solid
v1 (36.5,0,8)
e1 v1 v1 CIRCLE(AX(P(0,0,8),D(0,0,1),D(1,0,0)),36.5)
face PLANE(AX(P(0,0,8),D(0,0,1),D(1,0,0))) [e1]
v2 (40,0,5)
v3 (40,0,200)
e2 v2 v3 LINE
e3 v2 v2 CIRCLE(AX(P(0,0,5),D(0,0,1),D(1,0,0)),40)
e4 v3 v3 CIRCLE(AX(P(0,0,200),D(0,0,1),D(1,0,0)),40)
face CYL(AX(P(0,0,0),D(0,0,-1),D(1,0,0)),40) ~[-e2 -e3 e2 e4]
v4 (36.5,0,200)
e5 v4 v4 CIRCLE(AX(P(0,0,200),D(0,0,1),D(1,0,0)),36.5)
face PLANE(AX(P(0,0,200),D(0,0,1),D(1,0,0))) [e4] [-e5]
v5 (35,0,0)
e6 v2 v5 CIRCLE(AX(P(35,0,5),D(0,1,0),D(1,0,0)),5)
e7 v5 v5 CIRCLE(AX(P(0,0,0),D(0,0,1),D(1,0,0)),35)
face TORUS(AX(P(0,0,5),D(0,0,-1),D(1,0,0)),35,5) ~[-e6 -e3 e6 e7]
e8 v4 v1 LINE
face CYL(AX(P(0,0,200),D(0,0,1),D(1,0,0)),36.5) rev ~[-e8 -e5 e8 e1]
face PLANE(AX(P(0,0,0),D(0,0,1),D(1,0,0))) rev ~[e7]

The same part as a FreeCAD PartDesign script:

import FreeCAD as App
import Part
import Sketcher
from FreeCAD import Vector


def edges_at(feature, points):
    """Names of the edges that pass closest to the given points."""
    edges = feature.Shape.Edges
    near = lambda p: min(range(len(edges)), key=lambda i: edges[i].distToShape(Part.Vertex(*p))[0])
    return sorted({f"Edge{near(p) + 1}" for p in points})

doc = App.newDocument("Part")
body = doc.addObject("PartDesign::Body", "Body")

sketch1 = body.newObject("Sketcher::SketchObject", "Sketch")
sketch1.AttachmentSupport = (doc.getObject("XY_Plane"), [""])
sketch1.MapMode = "FlatFace"
sketch1.addGeometry(Part.Circle(Vector(0, 0, 0), Vector(0, 0, 1), 40), False)
sketch1.addConstraint(Sketcher.Constraint("Coincident", 0, 3, -1, 1))
sketch1.addConstraint(Sketcher.Constraint("Diameter", 0, 80.0))
pad1 = body.newObject("PartDesign::Pad", "Pad")
pad1.Profile = sketch1
pad1.Length = 200
doc.recompute()

fillet = body.newObject("PartDesign::Fillet", "Fillet")
fillet.Base = (pad1, edges_at(pad1, [(-40, 0, 0)]))
fillet.Radius = 5

sketch2 = body.newObject("Sketcher::SketchObject", "Sketch001")
sketch2.AttachmentSupport = (doc.getObject("XY_Plane"), [""])
sketch2.MapMode = "FlatFace"
sketch2.AttachmentOffset = App.Placement(Vector(0, 0, 200), App.Rotation())
sketch2.addGeometry(Part.Circle(Vector(0, 0, 0), Vector(0, 0, 1), 36), False)
sketch2.addConstraint(Sketcher.Constraint("Coincident", 0, 3, -1, 1))
sketch2.addConstraint(Sketcher.Constraint("Diameter", 0, 73.0))
pocket1 = body.newObject("PartDesign::Pocket", "Pocket")
pocket1.Profile = sketch2
pocket1.Length = 192

doc.recompute()
